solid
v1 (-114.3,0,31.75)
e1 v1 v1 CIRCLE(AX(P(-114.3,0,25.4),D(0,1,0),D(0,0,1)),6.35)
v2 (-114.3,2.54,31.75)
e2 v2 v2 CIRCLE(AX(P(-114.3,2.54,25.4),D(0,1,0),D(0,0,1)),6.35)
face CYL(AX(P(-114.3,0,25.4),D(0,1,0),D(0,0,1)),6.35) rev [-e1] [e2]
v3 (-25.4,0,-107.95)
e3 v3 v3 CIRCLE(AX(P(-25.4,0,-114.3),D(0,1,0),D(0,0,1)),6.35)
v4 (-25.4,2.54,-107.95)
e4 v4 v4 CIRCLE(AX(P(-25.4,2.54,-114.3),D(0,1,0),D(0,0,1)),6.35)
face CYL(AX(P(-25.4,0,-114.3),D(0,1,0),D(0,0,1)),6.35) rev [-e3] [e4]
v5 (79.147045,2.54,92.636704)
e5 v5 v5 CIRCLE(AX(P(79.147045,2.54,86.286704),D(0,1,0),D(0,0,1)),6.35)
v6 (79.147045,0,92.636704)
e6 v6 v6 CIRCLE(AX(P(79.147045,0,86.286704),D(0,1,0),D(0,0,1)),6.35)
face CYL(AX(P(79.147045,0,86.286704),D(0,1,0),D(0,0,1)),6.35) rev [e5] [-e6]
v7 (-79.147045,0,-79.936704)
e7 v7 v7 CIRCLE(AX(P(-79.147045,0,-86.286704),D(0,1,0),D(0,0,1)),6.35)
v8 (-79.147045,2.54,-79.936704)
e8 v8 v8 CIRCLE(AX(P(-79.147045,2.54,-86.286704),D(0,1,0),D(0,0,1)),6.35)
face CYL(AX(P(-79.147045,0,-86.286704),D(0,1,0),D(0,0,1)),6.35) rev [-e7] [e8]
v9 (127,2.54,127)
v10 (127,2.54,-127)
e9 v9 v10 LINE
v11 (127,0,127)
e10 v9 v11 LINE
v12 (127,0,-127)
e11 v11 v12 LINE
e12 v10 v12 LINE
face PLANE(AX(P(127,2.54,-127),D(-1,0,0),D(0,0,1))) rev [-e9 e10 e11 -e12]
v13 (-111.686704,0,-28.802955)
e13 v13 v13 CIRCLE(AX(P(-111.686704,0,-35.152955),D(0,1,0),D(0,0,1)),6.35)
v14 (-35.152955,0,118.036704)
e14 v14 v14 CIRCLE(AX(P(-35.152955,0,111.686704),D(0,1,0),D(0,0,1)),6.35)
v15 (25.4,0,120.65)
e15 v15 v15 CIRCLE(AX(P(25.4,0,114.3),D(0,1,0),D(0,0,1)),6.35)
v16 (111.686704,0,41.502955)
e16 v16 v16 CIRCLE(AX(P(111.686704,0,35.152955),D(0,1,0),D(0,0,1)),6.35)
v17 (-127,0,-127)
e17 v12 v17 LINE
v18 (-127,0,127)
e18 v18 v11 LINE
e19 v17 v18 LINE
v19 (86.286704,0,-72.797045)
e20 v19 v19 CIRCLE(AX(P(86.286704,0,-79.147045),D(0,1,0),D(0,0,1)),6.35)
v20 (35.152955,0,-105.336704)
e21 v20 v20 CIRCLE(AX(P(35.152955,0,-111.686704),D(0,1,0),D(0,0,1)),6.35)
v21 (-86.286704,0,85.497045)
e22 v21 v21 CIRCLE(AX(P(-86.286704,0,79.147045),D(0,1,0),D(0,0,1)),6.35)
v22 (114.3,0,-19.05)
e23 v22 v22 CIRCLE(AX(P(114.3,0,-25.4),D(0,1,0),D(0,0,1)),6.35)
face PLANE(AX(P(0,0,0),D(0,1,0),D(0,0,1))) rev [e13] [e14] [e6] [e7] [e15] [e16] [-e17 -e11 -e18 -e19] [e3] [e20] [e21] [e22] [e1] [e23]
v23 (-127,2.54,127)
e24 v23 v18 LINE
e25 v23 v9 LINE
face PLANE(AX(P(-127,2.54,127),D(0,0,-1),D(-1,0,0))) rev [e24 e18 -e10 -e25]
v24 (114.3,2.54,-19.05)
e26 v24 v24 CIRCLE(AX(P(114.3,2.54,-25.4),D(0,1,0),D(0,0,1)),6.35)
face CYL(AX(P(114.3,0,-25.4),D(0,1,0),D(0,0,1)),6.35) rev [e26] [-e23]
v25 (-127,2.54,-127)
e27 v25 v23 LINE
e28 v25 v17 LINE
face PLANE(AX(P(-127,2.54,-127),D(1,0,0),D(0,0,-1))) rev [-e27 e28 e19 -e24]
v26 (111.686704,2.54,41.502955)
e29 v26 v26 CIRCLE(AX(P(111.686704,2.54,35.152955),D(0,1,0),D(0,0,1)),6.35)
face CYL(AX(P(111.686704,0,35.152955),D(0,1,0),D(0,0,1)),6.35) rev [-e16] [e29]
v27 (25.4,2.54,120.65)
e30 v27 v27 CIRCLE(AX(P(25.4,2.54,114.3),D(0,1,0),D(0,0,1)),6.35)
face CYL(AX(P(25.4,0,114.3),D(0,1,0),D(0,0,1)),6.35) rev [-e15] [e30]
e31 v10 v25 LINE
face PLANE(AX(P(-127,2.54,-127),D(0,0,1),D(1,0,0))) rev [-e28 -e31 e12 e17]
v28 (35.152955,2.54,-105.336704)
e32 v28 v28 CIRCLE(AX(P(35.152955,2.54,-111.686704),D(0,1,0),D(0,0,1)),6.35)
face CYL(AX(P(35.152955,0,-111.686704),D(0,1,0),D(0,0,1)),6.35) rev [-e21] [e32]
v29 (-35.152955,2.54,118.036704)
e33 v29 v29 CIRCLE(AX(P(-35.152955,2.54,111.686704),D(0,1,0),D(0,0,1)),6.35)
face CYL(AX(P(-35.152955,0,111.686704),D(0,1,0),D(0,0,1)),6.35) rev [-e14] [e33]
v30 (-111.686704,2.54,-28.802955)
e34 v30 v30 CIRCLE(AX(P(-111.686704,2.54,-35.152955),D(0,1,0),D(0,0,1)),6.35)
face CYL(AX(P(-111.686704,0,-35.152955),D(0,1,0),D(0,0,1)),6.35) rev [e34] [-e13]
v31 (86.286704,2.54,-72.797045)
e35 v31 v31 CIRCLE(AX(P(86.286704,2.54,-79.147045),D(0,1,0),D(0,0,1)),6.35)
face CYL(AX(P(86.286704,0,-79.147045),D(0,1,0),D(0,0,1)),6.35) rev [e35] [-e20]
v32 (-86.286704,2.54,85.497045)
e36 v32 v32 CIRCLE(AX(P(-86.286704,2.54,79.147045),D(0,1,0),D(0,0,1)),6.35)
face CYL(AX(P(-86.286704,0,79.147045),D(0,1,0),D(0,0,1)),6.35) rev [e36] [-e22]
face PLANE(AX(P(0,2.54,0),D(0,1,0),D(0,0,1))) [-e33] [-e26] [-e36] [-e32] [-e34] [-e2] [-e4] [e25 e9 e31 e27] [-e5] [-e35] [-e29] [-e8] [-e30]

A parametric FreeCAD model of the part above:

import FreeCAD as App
import Part
import Sketcher

V = App.Vector
Q = App.Units.Quantity

doc = App.newDocument("Part")
params = doc.addObject("Spreadsheet::Sheet", "Params")
for row, (alias, value) in enumerate([
    ("sketch1_width", "10 in"),
    ("pad1_length", "0.1 in"),
    ("sketch2_diameter", "0.5 in"),
], start=1):
    params.set(f"A{row}", alias)
    params.set(f"B{row}", "=" + value)
    params.setAlias(f"B{row}", alias)

body = doc.addObject("PartDesign::Body", "Body")

# Sketch on XZ plane
sketch1 = body.newObject("Sketcher::SketchObject", "Sketch")
sketch1.AttachmentSupport = (doc.getObject("XZ_Plane"), [""])
sketch1.MapMode = "FlatFace"
sketch1.addGeometry(Part.LineSegment(V(-127, -127, 0), V(-127, 127, 0)), False)
sketch1.addGeometry(Part.LineSegment(V(-127, 127, 0), V(127, 127, 0)), False)
sketch1.addGeometry(Part.LineSegment(V(127, 127, 0), V(127, -127, 0)), False)
sketch1.addGeometry(Part.LineSegment(V(127, -127, 0), V(-127, -127, 0)), False)
sketch1.addConstraint(Sketcher.Constraint("Coincident", 0, 2, 1, 1))
sketch1.addConstraint(Sketcher.Constraint("Coincident", 1, 2, 2, 1))
sketch1.addConstraint(Sketcher.Constraint("Coincident", 2, 2, 3, 1))
sketch1.addConstraint(Sketcher.Constraint("Coincident", 3, 2, 0, 1))
sketch1.addConstraint(Sketcher.Constraint("Vertical", 0))
sketch1.addConstraint(Sketcher.Constraint("Horizontal", 1))
sketch1.addConstraint(Sketcher.Constraint("Vertical", 2))
sketch1.addConstraint(Sketcher.Constraint("Horizontal", 3))
sketch1.addConstraint(Sketcher.Constraint("Symmetric", 0, 2, 2, 2, -1, 1))
sketch1.addConstraint(Sketcher.Constraint("Equal", 3, 0))
sketch1.addConstraint(Sketcher.Constraint("DistanceX", 1, 1, 1, 2, Q("10 in")))
sketch1.setExpression("Constraints[10]", "Params.sketch1_width")
pad1 = body.newObject("PartDesign::Pad", "Pad")
pad1.Profile = sketch1
pad1.setExpression("Length", "Params.pad1_length")
pad1.Reversed = True

# Sketch on XZ plane
sketch2 = body.newObject("Sketcher::SketchObject", "Sketch001")
sketch2.AttachmentSupport = (doc.getObject("XZ_Plane"), [""])
sketch2.MapMode = "FlatFace"
sketch2.AttachmentOffset = App.Placement(V(0, 0, -0.1 * 25.4), App.Rotation())
sketch2.addGeometry(Part.Circle(V(114, -25, 0), V(0, 0, 1), 6), False)
sketch2.addGeometry(Part.Circle(V(112, 35, 0), V(0, 0, 1), 6), False)
sketch2.addGeometry(Part.Circle(V(79, 86, 0), V(0, 0, 1), 6), False)
sketch2.addGeometry(Part.Circle(V(25, 114, 0), V(0, 0, 1), 6), False)
sketch2.addGeometry(Part.Circle(V(-35, 112, 0), V(0, 0, 1), 6), False)
sketch2.addGeometry(Part.Circle(V(-86, 79, 0), V(0, 0, 1), 6), False)
sketch2.addGeometry(Part.Circle(V(-114, 25, 0), V(0, 0, 1), 6), False)
sketch2.addGeometry(Part.Circle(V(-112, -35, 0), V(0, 0, 1), 6), False)
sketch2.addGeometry(Part.Circle(V(-79, -86, 0), V(0, 0, 1), 6), False)
sketch2.addGeometry(Part.Circle(V(-25, -114, 0), V(0, 0, 1), 6), False)
sketch2.addGeometry(Part.Circle(V(35, -112, 0), V(0, 0, 1), 6), False)
sketch2.addGeometry(Part.Circle(V(86, -79, 0), V(0, 0, 1), 6), False)
sketch2.addConstraint(Sketcher.Constraint("Equal", 0, 1))
sketch2.addConstraint(Sketcher.Constraint("Equal", 1, 2))
sketch2.addConstraint(Sketcher.Constraint("Equal", 2, 3))
sketch2.addConstraint(Sketcher.Constraint("Equal", 3, 4))
sketch2.addConstraint(Sketcher.Constraint("Equal", 4, 5))
sketch2.addConstraint(Sketcher.Constraint("Equal", 5, 6))
sketch2.addConstraint(Sketcher.Constraint("Equal", 6, 7))
sketch2.addConstraint(Sketcher.Constraint("Equal", 7, 8))
sketch2.addConstraint(Sketcher.Constraint("Equal", 8, 9))
sketch2.addConstraint(Sketcher.Constraint("Equal", 9, 10))
sketch2.addConstraint(Sketcher.Constraint("Equal", 10, 11))
sketch2.addConstraint(Sketcher.Constraint("Symmetric", 0, 3, 6, 3, -1, 1))
sketch2.addConstraint(Sketcher.Constraint("Symmetric", 1, 3, 7, 3, -1, 1))
sketch2.addConstraint(Sketcher.Constraint("Symmetric", 2, 3, 8, 3, -1, 1))
sketch2.addConstraint(Sketcher.Constraint("Symmetric", 3, 3, 9, 3, -1, 1))
sketch2.addConstraint(Sketcher.Constraint("Symmetric", 4, 3, 10, 3, -1, 1))
sketch2.addConstraint(Sketcher.Constraint("Symmetric", 5, 3, 11, 3, -1, 1))
sketch2.addConstraint(Sketcher.Constraint("Diameter", 0, Q("0.5 in")))
sketch2.addConstraint(Sketcher.Constraint("DistanceY", 0, 3, -1, 1, Q("1 in")))
sketch2.addConstraint(Sketcher.Constraint("DistanceX", -1, 1, 3, 3, Q("1 in")))
sketch2.addConstraint(Sketcher.Constraint("DistanceY", 2, 3, 4, 3, Q("1 in")))
sketch2.addConstraint(Sketcher.Constraint("DistanceX", 7, 3, 5, 3, Q("1 in")))
sketch2.addConstraint(Sketcher.Constraint("DistanceX", -1, 1, 0, 3, Q("4.5 in")))
sketch2.addConstraint(Sketcher.Constraint("DistanceY", -1, 1, 3, 3, Q("4.5 in")))
sketch2.addConstraint(Sketcher.Constraint("DistanceX", 4, 3, 2, 3, Q("4.5 in")))
sketch2.addConstraint(Sketcher.Constraint("DistanceY", 7, 3, 5, 3, Q("4.5 in")))
sketch2.addConstraint(Sketcher.Constraint("DistanceX", 2, 3, 1, 3, 32.539658))
sketch2.addConstraint(Sketcher.Constraint("DistanceY", 1, 3, 2, 3, 51.133749))
sketch2.addConstraint(Sketcher.Constraint("DistanceX", 5, 3, 4, 3, 51.133749))
sketch2.addConstraint(Sketcher.Constraint("DistanceY", 5, 3, 4, 3, 32.539658))
sketch2.setExpression("Constraints[17]", "Params.sketch2_diameter")
pocket1 = body.newObject("PartDesign::Pocket", "Pocket")
pocket1.Profile = sketch2
pocket1.Type = "ThroughAll"
pocket1.Reversed = True

doc.recompute()
